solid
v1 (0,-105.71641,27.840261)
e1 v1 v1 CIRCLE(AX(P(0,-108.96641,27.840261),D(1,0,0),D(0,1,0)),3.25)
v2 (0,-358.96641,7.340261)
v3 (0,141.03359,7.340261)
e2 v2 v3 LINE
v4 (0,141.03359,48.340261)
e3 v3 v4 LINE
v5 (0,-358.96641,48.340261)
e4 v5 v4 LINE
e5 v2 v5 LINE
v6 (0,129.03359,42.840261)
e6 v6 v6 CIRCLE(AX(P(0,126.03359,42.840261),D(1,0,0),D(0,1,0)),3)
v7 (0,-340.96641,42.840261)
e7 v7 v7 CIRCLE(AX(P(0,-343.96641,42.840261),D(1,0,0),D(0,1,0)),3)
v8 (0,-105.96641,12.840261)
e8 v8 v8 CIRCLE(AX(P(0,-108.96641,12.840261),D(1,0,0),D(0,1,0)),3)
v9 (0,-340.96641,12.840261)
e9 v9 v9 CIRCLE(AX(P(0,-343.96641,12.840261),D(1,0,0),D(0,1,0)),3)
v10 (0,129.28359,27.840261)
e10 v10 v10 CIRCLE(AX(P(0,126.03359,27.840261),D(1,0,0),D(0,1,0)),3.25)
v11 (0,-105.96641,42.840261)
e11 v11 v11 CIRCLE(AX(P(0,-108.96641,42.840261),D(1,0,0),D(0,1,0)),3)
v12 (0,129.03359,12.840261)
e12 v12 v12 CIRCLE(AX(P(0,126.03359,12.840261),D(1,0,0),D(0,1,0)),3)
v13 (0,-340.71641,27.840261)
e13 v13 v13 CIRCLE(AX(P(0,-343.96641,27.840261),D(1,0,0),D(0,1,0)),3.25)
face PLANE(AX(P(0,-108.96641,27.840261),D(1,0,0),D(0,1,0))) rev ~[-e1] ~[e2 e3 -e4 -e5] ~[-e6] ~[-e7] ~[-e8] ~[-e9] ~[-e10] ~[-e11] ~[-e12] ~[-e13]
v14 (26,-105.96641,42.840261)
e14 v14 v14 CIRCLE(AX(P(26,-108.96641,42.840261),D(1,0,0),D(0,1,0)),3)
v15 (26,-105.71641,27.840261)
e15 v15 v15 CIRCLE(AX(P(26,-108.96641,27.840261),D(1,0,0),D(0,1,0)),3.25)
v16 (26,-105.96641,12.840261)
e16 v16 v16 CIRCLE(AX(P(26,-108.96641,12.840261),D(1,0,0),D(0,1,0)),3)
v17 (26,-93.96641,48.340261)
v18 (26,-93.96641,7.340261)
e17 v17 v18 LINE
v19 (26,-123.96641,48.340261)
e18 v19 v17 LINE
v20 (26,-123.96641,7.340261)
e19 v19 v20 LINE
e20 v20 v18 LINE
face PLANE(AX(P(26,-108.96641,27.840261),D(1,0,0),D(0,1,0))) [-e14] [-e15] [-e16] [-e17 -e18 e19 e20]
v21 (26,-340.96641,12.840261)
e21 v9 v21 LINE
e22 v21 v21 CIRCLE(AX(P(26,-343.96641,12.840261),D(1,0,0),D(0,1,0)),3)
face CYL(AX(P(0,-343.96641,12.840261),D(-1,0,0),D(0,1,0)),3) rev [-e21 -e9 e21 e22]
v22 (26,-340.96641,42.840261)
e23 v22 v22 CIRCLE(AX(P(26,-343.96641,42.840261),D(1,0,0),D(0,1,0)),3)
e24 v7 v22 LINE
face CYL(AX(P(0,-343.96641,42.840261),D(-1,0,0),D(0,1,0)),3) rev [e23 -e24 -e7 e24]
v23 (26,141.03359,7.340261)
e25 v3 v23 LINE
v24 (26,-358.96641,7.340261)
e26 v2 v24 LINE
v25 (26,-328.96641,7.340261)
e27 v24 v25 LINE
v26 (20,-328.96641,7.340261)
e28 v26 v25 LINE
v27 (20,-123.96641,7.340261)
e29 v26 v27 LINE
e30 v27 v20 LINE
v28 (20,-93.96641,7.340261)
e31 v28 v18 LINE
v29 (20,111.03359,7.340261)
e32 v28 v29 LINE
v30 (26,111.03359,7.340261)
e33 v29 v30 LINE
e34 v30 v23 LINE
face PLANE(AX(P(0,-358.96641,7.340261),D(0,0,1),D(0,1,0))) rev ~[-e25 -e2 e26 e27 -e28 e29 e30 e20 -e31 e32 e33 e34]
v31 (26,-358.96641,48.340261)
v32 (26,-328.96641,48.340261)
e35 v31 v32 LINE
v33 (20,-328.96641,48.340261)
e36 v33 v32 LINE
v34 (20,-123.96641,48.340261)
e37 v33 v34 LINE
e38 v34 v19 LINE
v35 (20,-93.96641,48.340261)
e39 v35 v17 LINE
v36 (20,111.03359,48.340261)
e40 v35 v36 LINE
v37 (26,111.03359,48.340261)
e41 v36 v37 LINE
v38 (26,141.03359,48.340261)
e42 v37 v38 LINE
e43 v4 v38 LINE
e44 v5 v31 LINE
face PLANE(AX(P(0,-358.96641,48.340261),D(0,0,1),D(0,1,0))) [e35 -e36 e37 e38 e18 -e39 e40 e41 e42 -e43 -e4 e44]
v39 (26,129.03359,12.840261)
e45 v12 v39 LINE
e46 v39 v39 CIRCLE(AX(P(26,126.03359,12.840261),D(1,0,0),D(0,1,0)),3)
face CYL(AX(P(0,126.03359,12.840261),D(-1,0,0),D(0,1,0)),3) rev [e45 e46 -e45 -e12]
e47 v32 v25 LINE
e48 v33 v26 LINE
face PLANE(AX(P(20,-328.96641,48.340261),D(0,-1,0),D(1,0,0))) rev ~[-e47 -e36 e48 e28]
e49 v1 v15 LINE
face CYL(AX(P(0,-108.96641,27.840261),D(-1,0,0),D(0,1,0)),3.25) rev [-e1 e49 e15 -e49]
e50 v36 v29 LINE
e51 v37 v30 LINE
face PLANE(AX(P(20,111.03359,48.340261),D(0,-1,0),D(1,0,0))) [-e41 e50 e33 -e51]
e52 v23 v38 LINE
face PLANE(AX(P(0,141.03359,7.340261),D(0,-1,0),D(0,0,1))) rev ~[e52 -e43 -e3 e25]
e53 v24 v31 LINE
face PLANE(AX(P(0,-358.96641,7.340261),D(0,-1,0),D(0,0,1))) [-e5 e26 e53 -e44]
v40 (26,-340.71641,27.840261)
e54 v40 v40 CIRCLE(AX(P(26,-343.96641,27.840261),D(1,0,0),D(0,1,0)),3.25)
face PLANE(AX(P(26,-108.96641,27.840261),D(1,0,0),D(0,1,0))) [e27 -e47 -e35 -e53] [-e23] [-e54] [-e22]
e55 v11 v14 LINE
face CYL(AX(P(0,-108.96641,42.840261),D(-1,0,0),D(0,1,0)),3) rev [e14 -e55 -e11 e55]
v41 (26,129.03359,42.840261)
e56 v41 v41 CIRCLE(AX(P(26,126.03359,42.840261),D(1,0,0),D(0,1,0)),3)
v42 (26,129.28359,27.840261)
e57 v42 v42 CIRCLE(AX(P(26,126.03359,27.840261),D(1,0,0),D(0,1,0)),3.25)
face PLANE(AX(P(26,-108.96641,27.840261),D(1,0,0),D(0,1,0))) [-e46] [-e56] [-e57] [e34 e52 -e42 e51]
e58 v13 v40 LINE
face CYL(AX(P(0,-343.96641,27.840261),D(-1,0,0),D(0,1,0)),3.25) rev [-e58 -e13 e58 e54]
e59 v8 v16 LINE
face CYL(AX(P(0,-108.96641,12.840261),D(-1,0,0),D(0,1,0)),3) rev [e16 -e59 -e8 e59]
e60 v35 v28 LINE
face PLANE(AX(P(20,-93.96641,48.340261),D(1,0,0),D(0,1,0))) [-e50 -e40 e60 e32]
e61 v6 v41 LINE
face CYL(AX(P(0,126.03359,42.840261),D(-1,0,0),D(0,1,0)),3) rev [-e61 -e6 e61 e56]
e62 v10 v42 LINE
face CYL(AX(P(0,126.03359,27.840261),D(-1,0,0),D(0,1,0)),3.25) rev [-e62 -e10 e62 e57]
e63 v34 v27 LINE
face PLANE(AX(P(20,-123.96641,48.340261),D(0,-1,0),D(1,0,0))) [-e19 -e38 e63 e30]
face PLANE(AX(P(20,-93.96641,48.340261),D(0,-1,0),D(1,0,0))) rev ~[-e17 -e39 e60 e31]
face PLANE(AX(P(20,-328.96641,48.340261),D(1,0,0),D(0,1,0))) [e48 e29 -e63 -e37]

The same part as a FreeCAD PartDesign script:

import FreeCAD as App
import Part
import Sketcher
from FreeCAD import Vector


def add_polygon(sketch, points):
    """Adds a closed chain of lines whose ends are joined by coincident constraints."""
    first, n = sketch.GeometryCount, len(points)
    for a, b in zip(points, points[1:] + points[:1]):
        sketch.addGeometry(Part.LineSegment(App.Vector(*a, 0), App.Vector(*b, 0)), False)
    for i in range(n):
        sketch.addConstraint(Sketcher.Constraint("Coincident", first + i, 2, first + (i + 1) % n, 1))

doc = App.newDocument("Part")
body = doc.addObject("PartDesign::Body", "Body")

sketch1 = doc.addObject("Sketcher::SketchObject", "Sketch")
body.addObject(sketch1)
sketch1.AttachmentSupport = (doc.YZ_Plane, [""])
sketch1.MapMode = "FlatFace"
add_polygon(sketch1, [(-359, 48.3), (-359, 7.3), (141, 7.3), (141, 48.3)])
sketch1.addGeometry(Part.Circle(Vector(-344, 12.8, 0), Vector(0, 0, 1), 3), False)
sketch1.addGeometry(Part.Circle(Vector(-109, 12.8, 0), Vector(0, 0, 1), 3), False)
sketch1.addGeometry(Part.Circle(Vector(126, 12.8, 0), Vector(0, 0, 1), 3), False)
sketch1.addGeometry(Part.Circle(Vector(-344, 27.8, 0), Vector(0, 0, 1), 3.2), False)
sketch1.addGeometry(Part.Circle(Vector(-344, 42.8, 0), Vector(0, 0, 1), 3), False)
sketch1.addGeometry(Part.Circle(Vector(-109, 27.8, 0), Vector(0, 0, 1), 3.2), False)
sketch1.addGeometry(Part.Circle(Vector(126, 27.8, 0), Vector(0, 0, 1), 3.2), False)
sketch1.addGeometry(Part.Circle(Vector(-109, 42.8, 0), Vector(0, 0, 1), 3), False)
sketch1.addGeometry(Part.Circle(Vector(126, 42.8, 0), Vector(0, 0, 1), 3), False)
sketch1.addConstraint(Sketcher.Constraint("Vertical", 0))
sketch1.addConstraint(Sketcher.Constraint("Horizontal", 1))
sketch1.addConstraint(Sketcher.Constraint("Vertical", 2))
sketch1.addConstraint(Sketcher.Constraint("Horizontal", 3))
sketch1.addConstraint(Sketcher.Constraint("Equal", 4, 5))
sketch1.addConstraint(Sketcher.Constraint("Equal", 5, 6))
sketch1.addConstraint(Sketcher.Constraint("Equal", 6, 8))
sketch1.addConstraint(Sketcher.Constraint("Equal", 7, 9))
sketch1.addConstraint(Sketcher.Constraint("Equal", 9, 10))
sketch1.addConstraint(Sketcher.Constraint("Equal", 8, 11))
sketch1.addConstraint(Sketcher.Constraint("Equal", 11, 12))
sketch1.addConstraint(Sketcher.Constraint("Horizontal", 4, 3, 5, 3))
sketch1.addConstraint(Sketcher.Constraint("Horizontal", 5, 3, 6, 3))
sketch1.addConstraint(Sketcher.Constraint("Horizontal", 7, 3, 9, 3))
sketch1.addConstraint(Sketcher.Constraint("Horizontal", 9, 3, 10, 3))
sketch1.addConstraint(Sketcher.Constraint("Horizontal", 8, 3, 11, 3))
sketch1.addConstraint(Sketcher.Constraint("Horizontal", 11, 3, 12, 3))
sketch1.addConstraint(Sketcher.Constraint("Vertical", 4, 3, 7, 3))
sketch1.addConstraint(Sketcher.Constraint("Vertical", 7, 3, 8, 3))
sketch1.addConstraint(Sketcher.Constraint("Vertical", 5, 3, 9, 3))
sketch1.addConstraint(Sketcher.Constraint("Vertical", 6, 3, 10, 3))
sketch1.addConstraint(Sketcher.Constraint("Vertical", 9, 3, 11, 3))
sketch1.addConstraint(Sketcher.Constraint("Vertical", 10, 3, 12, 3))
sketch1.addConstraint(Sketcher.Constraint("Diameter", 4, 6.0))
sketch1.addConstraint(Sketcher.Constraint("Diameter", 7, 6.5))
sketch1.addConstraint(Sketcher.Constraint("DistanceX", 1, 1, 1, 2, 500.0))
sketch1.addConstraint(Sketcher.Constraint("DistanceY", 0, 2, 0, 1, 41.0))
sketch1.addConstraint(Sketcher.Constraint("DistanceX", 4, 3, 5, 3, 235.0))
sketch1.addConstraint(Sketcher.Constraint("DistanceX", 5, 3, 6, 3, 235.0))
sketch1.addConstraint(Sketcher.Constraint("DistanceY", 4, 3, 7, 3, 15.0))
sketch1.addConstraint(Sketcher.Constraint("DistanceY", 7, 3, 8, 3, 15.0))
sketch1.addConstraint(Sketcher.Constraint("DistanceX", 0, 2, 4, 3, 15.0))
sketch1.addConstraint(Sketcher.Constraint("DistanceY", 0, 2, 4, 3, 5.5))
sketch1.addConstraint(Sketcher.Constraint("DistanceX", 4, 3, -1, 1, 343.96641))
sketch1.addConstraint(Sketcher.Constraint("DistanceY", -1, 1, 4, 3, 12.840261))
pad1 = doc.addObject("PartDesign::Pad", "Pad")
body.addObject(pad1)
pad1.Profile = sketch1
pad1.Length = 26

sketch2 = doc.addObject("Sketcher::SketchObject", "Sketch001")
body.addObject(sketch2)
sketch2.AttachmentSupport = (doc.XY_Plane, [""])
sketch2.MapMode = "FlatFace"
sketch2.AttachmentOffset = App.Placement(Vector(0, 0, 48.340261), App.Rotation())
add_polygon(sketch2, [(20, -124), (20, -329), (26, -329), (26, -124)])
add_polygon(sketch2, [(20, 111), (20, -94), (26, -94), (26, 111)])
sketch2.addConstraint(Sketcher.Constraint("Vertical", 0))
sketch2.addConstraint(Sketcher.Constraint("Horizontal", 1))
sketch2.addConstraint(Sketcher.Constraint("Vertical", 2))
sketch2.addConstraint(Sketcher.Constraint("Horizontal", 3))
sketch2.addConstraint(Sketcher.Constraint("Vertical", 4))
sketch2.addConstraint(Sketcher.Constraint("Horizontal", 5))
sketch2.addConstraint(Sketcher.Constraint("Vertical", 6))
sketch2.addConstraint(Sketcher.Constraint("Horizontal", 7))
sketch2.addConstraint(Sketcher.Constraint("Vertical", 3, 2, 4, 2))
sketch2.addConstraint(Sketcher.Constraint("Vertical", 2, 2, 5, 2))
sketch2.addConstraint(Sketcher.Constraint("Equal", 2, 4))
sketch2.addConstraint(Sketcher.Constraint("DistanceX", 1, 1, 1, 2, 6.0))
sketch2.addConstraint(Sketcher.Constraint("DistanceY", 0, 2, 0, 1, 205.0))
sketch2.addConstraint(Sketcher.Constraint("DistanceX", -1, 1, 0, 2, 20.0))
sketch2.addConstraint(Sketcher.Constraint("DistanceY", 3, 2, 4, 2, 30.0))
sketch2.addConstraint(Sketcher.Constraint("DistanceY", 0, 2, -1, 1, 328.96641))
pocket1 = doc.addObject("PartDesign::Pocket", "Pocket")
body.addObject(pocket1)
pocket1.Profile = sketch2
pocket1.Type = "ThroughAll"

doc.recompute()
